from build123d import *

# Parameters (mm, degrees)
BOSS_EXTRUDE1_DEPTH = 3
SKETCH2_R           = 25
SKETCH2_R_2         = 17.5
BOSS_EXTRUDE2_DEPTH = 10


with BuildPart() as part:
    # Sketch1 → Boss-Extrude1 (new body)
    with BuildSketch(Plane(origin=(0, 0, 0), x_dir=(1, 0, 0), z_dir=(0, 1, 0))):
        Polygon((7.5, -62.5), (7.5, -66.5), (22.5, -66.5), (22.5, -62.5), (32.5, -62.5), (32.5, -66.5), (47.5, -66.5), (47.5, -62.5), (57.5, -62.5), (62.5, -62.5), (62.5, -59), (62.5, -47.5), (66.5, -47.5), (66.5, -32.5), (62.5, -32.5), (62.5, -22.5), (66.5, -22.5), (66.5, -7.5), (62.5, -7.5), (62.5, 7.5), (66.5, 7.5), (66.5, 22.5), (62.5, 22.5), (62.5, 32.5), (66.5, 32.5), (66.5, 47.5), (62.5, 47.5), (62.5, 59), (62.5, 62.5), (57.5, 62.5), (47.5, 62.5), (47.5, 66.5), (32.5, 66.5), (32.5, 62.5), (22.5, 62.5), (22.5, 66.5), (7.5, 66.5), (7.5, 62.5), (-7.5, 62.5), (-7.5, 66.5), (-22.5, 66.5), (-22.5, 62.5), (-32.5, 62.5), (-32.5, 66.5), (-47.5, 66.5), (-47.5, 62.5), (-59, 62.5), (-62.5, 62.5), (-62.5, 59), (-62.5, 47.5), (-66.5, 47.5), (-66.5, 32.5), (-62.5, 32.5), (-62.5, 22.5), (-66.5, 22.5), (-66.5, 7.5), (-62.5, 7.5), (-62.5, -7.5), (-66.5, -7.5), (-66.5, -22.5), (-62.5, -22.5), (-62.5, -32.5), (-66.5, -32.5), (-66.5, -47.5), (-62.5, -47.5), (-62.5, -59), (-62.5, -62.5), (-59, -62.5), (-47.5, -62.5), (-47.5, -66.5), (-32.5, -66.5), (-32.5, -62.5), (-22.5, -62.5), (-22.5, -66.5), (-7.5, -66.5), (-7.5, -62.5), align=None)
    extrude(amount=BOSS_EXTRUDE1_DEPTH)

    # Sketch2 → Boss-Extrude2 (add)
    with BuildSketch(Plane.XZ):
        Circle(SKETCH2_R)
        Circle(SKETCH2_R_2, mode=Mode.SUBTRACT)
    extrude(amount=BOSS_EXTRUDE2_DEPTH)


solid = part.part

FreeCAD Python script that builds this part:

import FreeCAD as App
import Part
import Sketcher

V = App.Vector


def add_polygon(sketch, points):
    """Adds a closed chain of lines whose ends are joined by coincident constraints."""
    first, n = sketch.GeometryCount, len(points)
    for a, b in zip(points, points[1:] + points[:1]):
        sketch.addGeometry(Part.LineSegment(App.Vector(*a, 0), App.Vector(*b, 0)), False)
    for i in range(n):
        sketch.addConstraint(Sketcher.Constraint("Coincident", first + i, 2, first + (i + 1) % n, 1))

doc = App.newDocument("Part")
params = doc.addObject("Spreadsheet::Sheet", "Params")
for row, (alias, value) in enumerate([
    ("sketch1_width", "15 mm"),
    ("sketch1_width2", "10 mm"),
    ("sketch1_width3", "4 mm"),
    ("pad1_length", "3 mm"),
    ("sketch2_diameter", "50 mm"),
    ("sketch2_diameter2", "35 mm"),
    ("pad2_length", "10 mm"),
], start=1):
    params.set(f"A{row}", alias)
    params.set(f"B{row}", "=" + value)
    params.setAlias(f"B{row}", alias)

body = doc.addObject("PartDesign::Body", "Body")

sketch1 = body.newObject("Sketcher::SketchObject", "Sketch")
sketch1.AttachmentSupport = (doc.getObject("XZ_Plane"), [""])
sketch1.MapMode = "FlatFace"
add_polygon(sketch1, [(7.5, 62.5), (7.5, 66.5), (22.5, 66.5), (22.5, 62.5), (32.5, 62.5), (32.5, 66.5), (47.5, 66.5), (47.5, 62.5), (62.5, 62.5), (62.5, 47.5), (66.5, 47.5), (66.5, 32.5), (62.5, 32.5), (62.5, 22.5), (66.5, 22.5), (66.5, 7.5), (62.5, 7.5), (62.5, -7.5), (66.5, -7.5), (66.5, -22.5), (62.5, -22.5), (62.5, -32.5), (66.5, -32.5), (66.5, -47.5), (62.5, -47.5), (62.5, -62.5), (47.5, -62.5), (47.5, -66.5), (32.5, -66.5), (32.5, -62.5), (22.5, -62.5), (22.5, -66.5), (7.5, -66.5), (7.5, -62.5), (-7.5, -62.5), (-7.5, -66.5), (-22.5, -66.5), (-22.5, -62.5), (-32.5, -62.5), (-32.5, -66.5), (-47.5, -66.5), (-47.5, -62.5), (-62.5, -62.5), (-62.5, -47.5), (-66.5, -47.5), (-66.5, -32.5), (-62.5, -32.5), (-62.5, -22.5), (-66.5, -22.5), (-66.5, -7.5), (-62.5, -7.5), (-62.5, 7.5), (-66.5, 7.5), (-66.5, 22.5), (-62.5, 22.5), (-62.5, 32.5), (-66.5, 32.5), (-66.5, 47.5), (-62.5, 47.5), (-62.5, 62.5), (-47.5, 62.5), (-47.5, 66.5), (-32.5, 66.5), (-32.5, 62.5), (-22.5, 62.5), (-22.5, 66.5), (-7.5, 66.5), (-7.5, 62.5)])
sketch1.addConstraint(Sketcher.Constraint("Vertical", 0))
sketch1.addConstraint(Sketcher.Constraint("Horizontal", 1))
sketch1.addConstraint(Sketcher.Constraint("Vertical", 2))
sketch1.addConstraint(Sketcher.Constraint("Horizontal", 3))
sketch1.addConstraint(Sketcher.Constraint("Vertical", 4))
sketch1.addConstraint(Sketcher.Constraint("Horizontal", 5))
sketch1.addConstraint(Sketcher.Constraint("Vertical", 6))
sketch1.addConstraint(Sketcher.Constraint("Horizontal", 7))
sketch1.addConstraint(Sketcher.Constraint("Vertical", 8))
sketch1.addConstraint(Sketcher.Constraint("Horizontal", 9))
sketch1.addConstraint(Sketcher.Constraint("Vertical", 10))
sketch1.addConstraint(Sketcher.Constraint("Horizontal", 11))
sketch1.addConstraint(Sketcher.Constraint("Vertical", 12))
sketch1.addConstraint(Sketcher.Constraint("Horizontal", 13))
sketch1.addConstraint(Sketcher.Constraint("Vertical", 14))
sketch1.addConstraint(Sketcher.Constraint("Horizontal", 15))
sketch1.addConstraint(Sketcher.Constraint("Vertical", 16))
sketch1.addConstraint(Sketcher.Constraint("Horizontal", 17))
sketch1.addConstraint(Sketcher.Constraint("Vertical", 18))
sketch1.addConstraint(Sketcher.Constraint("Horizontal", 19))
sketch1.addConstraint(Sketcher.Constraint("Vertical", 20))
sketch1.addConstraint(Sketcher.Constraint("Horizontal", 21))
sketch1.addConstraint(Sketcher.Constraint("Vertical", 22))
sketch1.addConstraint(Sketcher.Constraint("Horizontal", 23))
sketch1.addConstraint(Sketcher.Constraint("Vertical", 24))
sketch1.addConstraint(Sketcher.Constraint("Horizontal", 25))
sketch1.addConstraint(Sketcher.Constraint("Vertical", 26))
sketch1.addConstraint(Sketcher.Constraint("Horizontal", 27))
sketch1.addConstraint(Sketcher.Constraint("Vertical", 28))
sketch1.addConstraint(Sketcher.Constraint("Horizontal", 29))
sketch1.addConstraint(Sketcher.Constraint("Vertical", 30))
sketch1.addConstraint(Sketcher.Constraint("Horizontal", 31))
sketch1.addConstraint(Sketcher.Constraint("Vertical", 32))
sketch1.addConstraint(Sketcher.Constraint("Horizontal", 33))
sketch1.addConstraint(Sketcher.Constraint("Vertical", 34))
sketch1.addConstraint(Sketcher.Constraint("Horizontal", 35))
sketch1.addConstraint(Sketcher.Constraint("Vertical", 36))
sketch1.addConstraint(Sketcher.Constraint("Horizontal", 37))
sketch1.addConstraint(Sketcher.Constraint("Vertical", 38))
sketch1.addConstraint(Sketcher.Constraint("Horizontal", 39))
sketch1.addConstraint(Sketcher.Constraint("Vertical", 40))
sketch1.addConstraint(Sketcher.Constraint("Horizontal", 41))
sketch1.addConstraint(Sketcher.Constraint("Vertical", 42))
sketch1.addConstraint(Sketcher.Constraint("Horizontal", 43))
sketch1.addConstraint(Sketcher.Constraint("Vertical", 44))
sketch1.addConstraint(Sketcher.Constraint("Horizontal", 45))
sketch1.addConstraint(Sketcher.Constraint("Vertical", 46))
sketch1.addConstraint(Sketcher.Constraint("Horizontal", 47))
sketch1.addConstraint(Sketcher.Constraint("Vertical", 48))
sketch1.addConstraint(Sketcher.Constraint("Horizontal", 49))
sketch1.addConstraint(Sketcher.Constraint("Vertical", 50))
sketch1.addConstraint(Sketcher.Constraint("Horizontal", 51))
sketch1.addConstraint(Sketcher.Constraint("Vertical", 52))
sketch1.addConstraint(Sketcher.Constraint("Horizontal", 53))
sketch1.addConstraint(Sketcher.Constraint("Vertical", 54))
sketch1.addConstraint(Sketcher.Constraint("Horizontal", 55))
sketch1.addConstraint(Sketcher.Constraint("Vertical", 56))
sketch1.addConstraint(Sketcher.Constraint("Horizontal", 57))
sketch1.addConstraint(Sketcher.Constraint("Vertical", 58))
sketch1.addConstraint(Sketcher.Constraint("Horizontal", 59))
sketch1.addConstraint(Sketcher.Constraint("Vertical", 60))
sketch1.addConstraint(Sketcher.Constraint("Horizontal", 61))
sketch1.addConstraint(Sketcher.Constraint("Vertical", 62))
sketch1.addConstraint(Sketcher.Constraint("Horizontal", 63))
sketch1.addConstraint(Sketcher.Constraint("Vertical", 64))
sketch1.addConstraint(Sketcher.Constraint("Horizontal", 65))
sketch1.addConstraint(Sketcher.Constraint("Vertical", 66))
sketch1.addConstraint(Sketcher.Constraint("Horizontal", 67))
sketch1.addConstraint(Sketcher.Constraint("Symmetric", 0, 2, 34, 2, -1, 1))
sketch1.addConstraint(Sketcher.Constraint("Symmetric", 2, 2, 36, 2, -1, 1))
sketch1.addConstraint(Sketcher.Constraint("Symmetric", 4, 2, 38, 2, -1, 1))
sketch1.addConstraint(Sketcher.Constraint("Symmetric", 6, 2, 40, 2, -1, 1))
sketch1.addConstraint(Sketcher.Constraint("Symmetric", 8, 2, 42, 2, -1, 1))
sketch1.addConstraint(Sketcher.Constraint("Symmetric", 10, 2, 44, 2, -1, 1))
sketch1.addConstraint(Sketcher.Constraint("Symmetric", 12, 2, 46, 2, -1, 1))
sketch1.addConstraint(Sketcher.Constraint("Symmetric", 14, 2, 48, 2, -1, 1))
sketch1.addConstraint(Sketcher.Constraint("Symmetric", 16, 2, 50, 2, -1, 1))
sketch1.addConstraint(Sketcher.Constraint("Symmetric", 18, 2, 52, 2, -1, 1))
sketch1.addConstraint(Sketcher.Constraint("Symmetric", 20, 2, 54, 2, -1, 1))
sketch1.addConstraint(Sketcher.Constraint("Symmetric", 22, 2, 56, 2, -1, 1))
sketch1.addConstraint(Sketcher.Constraint("Symmetric", 24, 2, 58, 2, -1, 1))
sketch1.addConstraint(Sketcher.Constraint("Symmetric", 26, 2, 60, 2, -1, 1))
sketch1.addConstraint(Sketcher.Constraint("Symmetric", 28, 2, 62, 2, -1, 1))
sketch1.addConstraint(Sketcher.Constraint("Symmetric", 30, 2, 64, 2, -1, 1))
sketch1.addConstraint(Sketcher.Constraint("Symmetric", 32, 2, 66, 2, -1, 1))
sketch1.addConstraint(Sketcher.Constraint("Symmetric", 31, 2, 34, 2, -2))
sketch1.addConstraint(Sketcher.Constraint("Symmetric", 29, 2, 36, 2, -2))
sketch1.addConstraint(Sketcher.Constraint("Symmetric", 27, 2, 38, 2, -2))
sketch1.addConstraint(Sketcher.Constraint("Symmetric", 25, 2, 40, 2, -2))
sketch1.addConstraint(Sketcher.Constraint("Symmetric", 23, 2, 42, 2, -2))
sketch1.addConstraint(Sketcher.Constraint("Symmetric", 21, 2, 44, 2, -2))
sketch1.addConstraint(Sketcher.Constraint("Symmetric", 19, 2, 46, 2, -2))
sketch1.addConstraint(Sketcher.Constraint("Symmetric", 17, 2, 48, 2, -2))
sketch1.addConstraint(Sketcher.Constraint("Horizontal", 1, 2, 4, 2))
sketch1.addConstraint(Sketcher.Constraint("Horizontal", 3, 2, 6, 2))
sketch1.addConstraint(Sketcher.Constraint("Horizontal", 29, 2, 32, 2))
sketch1.addConstraint(Sketcher.Constraint("Vertical", 8, 2, 11, 2))
sketch1.addConstraint(Sketcher.Constraint("Vertical", 10, 2, 13, 2))
sketch1.addConstraint(Sketcher.Constraint("Vertical", 12, 2, 15, 2))
sketch1.addConstraint(Sketcher.Constraint("Equal", 1, 5))
sketch1.addConstraint(Sketcher.Constraint("Equal", 5, 7))
sketch1.addConstraint(Sketcher.Constraint("Equal", 31, 33))
sketch1.addConstraint(Sketcher.Constraint("Equal", 57, 0))
sketch1.addConstraint(Sketcher.Constraint("Equal", 67, 8))
sketch1.addConstraint(Sketcher.Constraint("Equal", 8, 10))
sketch1.addConstraint(Sketcher.Constraint("Equal", 63, 12))
sketch1.addConstraint(Sketcher.Constraint("Equal", 10, 14))
sketch1.addConstraint(Sketcher.Constraint("Equal", 14, 16))
sketch1.addConstraint(Sketcher.Constraint("DistanceX", 1, 1, 1, 2, 15.0))
sketch1.addConstraint(Sketcher.Constraint("DistanceX", 3, 1, 3, 2, 10.0))
sketch1.addConstraint(Sketcher.Constraint("DistanceX", 9, 1, 9, 2, 4.0))
sketch1.setExpression("Constraints[176]", "Params.sketch1_width")
sketch1.setExpression("Constraints[177]", "Params.sketch1_width2")
sketch1.setExpression("Constraints[178]", "Params.sketch1_width3")
pad1 = body.newObject("PartDesign::Pad", "Pad")
pad1.Profile = sketch1
pad1.setExpression("Length", "Params.pad1_length")
pad1.Reversed = True

sketch2 = body.newObject("Sketcher::SketchObject", "Sketch001")
sketch2.AttachmentSupport = (doc.getObject("XZ_Plane"), [""])
sketch2.MapMode = "FlatFace"
sketch2.addGeometry(Part.Circle(V(0, 0, 0), V(0, 0, 1), 25), False)
sketch2.addGeometry(Part.Circle(V(0, 0, 0), V(0, 0, 1), 18), False)
sketch2.addConstraint(Sketcher.Constraint("Coincident", 0, 3, -1, 1))
sketch2.addConstraint(Sketcher.Constraint("Coincident", 1, 3, -1, 1))
sketch2.addConstraint(Sketcher.Constraint("Diameter", 0, 50.0))
sketch2.addConstraint(Sketcher.Constraint("Diameter", 1, 35.0))
sketch2.setExpression("Constraints[2]", "Params.sketch2_diameter")
sketch2.setExpression("Constraints[3]", "Params.sketch2_diameter2")
pad2 = body.newObject("PartDesign::Pad", "Pad001")
pad2.Profile = sketch2
pad2.setExpression("Length", "Params.pad2_length")

doc.recompute()
